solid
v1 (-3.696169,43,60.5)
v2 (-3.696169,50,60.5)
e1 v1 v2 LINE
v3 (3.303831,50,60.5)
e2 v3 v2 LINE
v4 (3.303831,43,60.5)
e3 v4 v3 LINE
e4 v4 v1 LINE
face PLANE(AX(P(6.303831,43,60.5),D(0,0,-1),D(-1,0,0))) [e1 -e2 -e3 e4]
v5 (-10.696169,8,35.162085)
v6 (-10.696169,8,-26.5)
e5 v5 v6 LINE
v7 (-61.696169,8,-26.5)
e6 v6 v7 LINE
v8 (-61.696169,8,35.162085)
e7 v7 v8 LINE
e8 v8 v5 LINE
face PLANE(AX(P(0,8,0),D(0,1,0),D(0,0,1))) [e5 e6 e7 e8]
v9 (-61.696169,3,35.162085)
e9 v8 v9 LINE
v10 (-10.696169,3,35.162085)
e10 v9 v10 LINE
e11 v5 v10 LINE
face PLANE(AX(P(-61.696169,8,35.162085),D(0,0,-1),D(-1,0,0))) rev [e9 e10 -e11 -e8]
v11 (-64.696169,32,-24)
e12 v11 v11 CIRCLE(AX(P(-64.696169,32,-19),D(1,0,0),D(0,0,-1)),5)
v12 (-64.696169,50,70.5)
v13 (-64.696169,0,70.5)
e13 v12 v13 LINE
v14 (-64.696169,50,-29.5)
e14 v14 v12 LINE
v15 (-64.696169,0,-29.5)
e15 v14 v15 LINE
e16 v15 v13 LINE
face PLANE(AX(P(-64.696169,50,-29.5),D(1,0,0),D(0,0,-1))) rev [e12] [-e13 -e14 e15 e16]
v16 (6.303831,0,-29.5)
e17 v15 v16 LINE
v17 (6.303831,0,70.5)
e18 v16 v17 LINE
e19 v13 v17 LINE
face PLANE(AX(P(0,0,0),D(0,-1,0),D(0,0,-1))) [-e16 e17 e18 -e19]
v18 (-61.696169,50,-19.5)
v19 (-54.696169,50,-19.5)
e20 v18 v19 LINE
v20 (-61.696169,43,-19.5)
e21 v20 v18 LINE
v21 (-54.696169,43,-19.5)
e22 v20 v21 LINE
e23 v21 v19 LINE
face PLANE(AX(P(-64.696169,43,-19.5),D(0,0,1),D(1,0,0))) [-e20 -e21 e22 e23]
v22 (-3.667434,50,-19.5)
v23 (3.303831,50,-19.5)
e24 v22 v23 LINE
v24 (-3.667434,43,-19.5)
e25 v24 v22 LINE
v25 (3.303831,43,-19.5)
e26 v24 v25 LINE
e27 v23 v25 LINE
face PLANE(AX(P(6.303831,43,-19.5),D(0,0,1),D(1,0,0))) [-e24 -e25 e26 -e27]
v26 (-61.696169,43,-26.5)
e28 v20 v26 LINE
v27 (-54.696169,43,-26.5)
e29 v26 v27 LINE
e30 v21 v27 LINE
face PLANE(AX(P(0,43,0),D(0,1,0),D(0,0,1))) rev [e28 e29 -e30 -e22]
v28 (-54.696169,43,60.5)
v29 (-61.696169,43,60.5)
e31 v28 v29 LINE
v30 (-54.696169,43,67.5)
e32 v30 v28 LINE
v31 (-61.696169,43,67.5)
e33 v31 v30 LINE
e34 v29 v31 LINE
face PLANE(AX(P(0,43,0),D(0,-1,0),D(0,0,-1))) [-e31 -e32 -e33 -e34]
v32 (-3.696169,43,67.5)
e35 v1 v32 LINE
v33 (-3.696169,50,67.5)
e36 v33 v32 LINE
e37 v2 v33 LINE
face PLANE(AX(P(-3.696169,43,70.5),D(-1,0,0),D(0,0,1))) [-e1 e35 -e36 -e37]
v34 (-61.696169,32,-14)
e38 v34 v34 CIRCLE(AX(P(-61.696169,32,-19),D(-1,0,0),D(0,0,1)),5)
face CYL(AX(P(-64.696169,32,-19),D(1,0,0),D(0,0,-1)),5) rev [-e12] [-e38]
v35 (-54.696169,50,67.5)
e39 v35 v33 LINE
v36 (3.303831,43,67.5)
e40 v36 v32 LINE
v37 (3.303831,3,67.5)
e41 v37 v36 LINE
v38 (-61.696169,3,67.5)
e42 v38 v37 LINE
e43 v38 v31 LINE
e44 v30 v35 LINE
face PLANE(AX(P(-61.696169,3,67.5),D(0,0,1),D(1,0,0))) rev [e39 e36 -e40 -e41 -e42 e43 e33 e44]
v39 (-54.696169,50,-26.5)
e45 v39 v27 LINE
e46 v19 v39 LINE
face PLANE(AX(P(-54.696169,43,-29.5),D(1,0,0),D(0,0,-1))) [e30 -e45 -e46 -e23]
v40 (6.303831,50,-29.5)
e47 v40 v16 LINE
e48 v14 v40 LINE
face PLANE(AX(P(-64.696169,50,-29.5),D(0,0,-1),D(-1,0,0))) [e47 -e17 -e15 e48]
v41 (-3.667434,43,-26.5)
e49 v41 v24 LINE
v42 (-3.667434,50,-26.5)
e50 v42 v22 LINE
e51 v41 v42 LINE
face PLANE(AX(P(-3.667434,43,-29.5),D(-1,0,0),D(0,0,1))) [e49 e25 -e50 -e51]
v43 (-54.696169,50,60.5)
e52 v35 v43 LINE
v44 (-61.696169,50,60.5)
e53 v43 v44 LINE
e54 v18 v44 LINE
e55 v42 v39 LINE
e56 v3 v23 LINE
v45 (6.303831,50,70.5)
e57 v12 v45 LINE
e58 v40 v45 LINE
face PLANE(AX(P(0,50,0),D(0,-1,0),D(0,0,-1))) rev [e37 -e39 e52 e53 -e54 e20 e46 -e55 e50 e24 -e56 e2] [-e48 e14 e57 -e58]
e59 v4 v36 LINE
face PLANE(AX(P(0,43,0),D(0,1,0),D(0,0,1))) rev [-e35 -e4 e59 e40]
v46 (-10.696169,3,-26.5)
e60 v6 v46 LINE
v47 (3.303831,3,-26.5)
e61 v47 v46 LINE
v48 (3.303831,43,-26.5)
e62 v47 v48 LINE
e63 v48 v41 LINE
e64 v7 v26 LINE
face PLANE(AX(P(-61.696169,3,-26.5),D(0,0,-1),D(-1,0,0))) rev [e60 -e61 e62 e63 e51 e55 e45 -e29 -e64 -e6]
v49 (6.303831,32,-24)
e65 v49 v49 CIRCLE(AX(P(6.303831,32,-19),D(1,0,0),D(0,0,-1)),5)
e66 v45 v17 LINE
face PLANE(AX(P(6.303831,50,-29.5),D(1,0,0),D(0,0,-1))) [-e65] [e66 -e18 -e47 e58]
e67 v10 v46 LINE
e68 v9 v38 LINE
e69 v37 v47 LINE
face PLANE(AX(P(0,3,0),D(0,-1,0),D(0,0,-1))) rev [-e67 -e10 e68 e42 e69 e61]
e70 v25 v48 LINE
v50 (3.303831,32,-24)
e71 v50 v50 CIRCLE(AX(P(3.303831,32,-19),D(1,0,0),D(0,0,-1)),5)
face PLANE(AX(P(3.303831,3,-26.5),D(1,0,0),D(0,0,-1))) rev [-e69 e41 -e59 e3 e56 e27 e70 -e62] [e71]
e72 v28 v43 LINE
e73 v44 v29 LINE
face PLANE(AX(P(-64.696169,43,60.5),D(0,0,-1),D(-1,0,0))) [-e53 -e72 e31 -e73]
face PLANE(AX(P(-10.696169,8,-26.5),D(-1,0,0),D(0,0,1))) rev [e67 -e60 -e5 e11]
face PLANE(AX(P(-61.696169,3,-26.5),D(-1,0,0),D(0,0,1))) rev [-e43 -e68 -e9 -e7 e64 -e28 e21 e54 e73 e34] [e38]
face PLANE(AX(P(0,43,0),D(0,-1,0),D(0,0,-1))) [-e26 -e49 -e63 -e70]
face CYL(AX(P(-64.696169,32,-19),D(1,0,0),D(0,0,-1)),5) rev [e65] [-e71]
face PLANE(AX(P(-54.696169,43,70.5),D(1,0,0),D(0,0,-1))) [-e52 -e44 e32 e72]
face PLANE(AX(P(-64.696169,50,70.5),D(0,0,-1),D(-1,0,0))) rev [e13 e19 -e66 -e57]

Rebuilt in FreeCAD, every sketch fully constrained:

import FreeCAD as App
import Part
import Sketcher

V = App.Vector
Q = App.Units.Quantity

doc = App.newDocument("Part")
body = doc.addObject("PartDesign::Body", "Body")

sketch1 = doc.addObject("Sketcher::SketchObject", "Sketch")
body.addObject(sketch1)
sketch1.AttachmentSupport = (doc.XZ_Plane, [""])
sketch1.MapMode = "FlatFace"
sketch1.addGeometry(Part.LineSegment(V(-64.696169, -29.5, 0), V(-64.696169, 70.5, 0)), False)
sketch1.addGeometry(Part.LineSegment(V(-64.696169, 70.5, 0), V(6.303831, 70.5, 0)), False)
sketch1.addGeometry(Part.LineSegment(V(6.303831, 70.5, 0), V(6.303831, -29.5, 0)), False)
sketch1.addGeometry(Part.LineSegment(V(6.303831, -29.5, 0), V(-64.696169, -29.5, 0)), False)
sketch1.addConstraint(Sketcher.Constraint("Coincident", 0, 2, 1, 1))
sketch1.addConstraint(Sketcher.Constraint("Coincident", 1, 2, 2, 1))
sketch1.addConstraint(Sketcher.Constraint("Coincident", 2, 2, 3, 1))
sketch1.addConstraint(Sketcher.Constraint("Coincident", 3, 2, 0, 1))
sketch1.addConstraint(Sketcher.Constraint("Vertical", 0))
sketch1.addConstraint(Sketcher.Constraint("Horizontal", 1))
sketch1.addConstraint(Sketcher.Constraint("Vertical", 2))
sketch1.addConstraint(Sketcher.Constraint("Horizontal", 3))
sketch1.addConstraint(Sketcher.Constraint("DistanceX", 1, 1, 1, 2, Q("71 mm")))
sketch1.addConstraint(Sketcher.Constraint("DistanceY", 0, 1, 0, 2, Q("100 mm")))
sketch1.addConstraint(Sketcher.Constraint("DistanceY", -1, 1, 0, 2, Q("70.5 mm")))
sketch1.addConstraint(Sketcher.Constraint("DistanceX", 0, 2, -1, 1, Q("64.696169 mm")))
pad1 = doc.addObject("PartDesign::Pad", "Pad")
body.addObject(pad1)
pad1.Profile = sketch1
pad1.Length = 50
pad1.Reversed = True

sketch2 = doc.addObject("Sketcher::SketchObject", "Sketch001")
body.addObject(sketch2)
sketch2.AttachmentSupport = (doc.XZ_Plane, [""])
sketch2.MapMode = "FlatFace"
sketch2.AttachmentOffset = App.Placement(V(0, 0, -50), App.Rotation())
sketch2.addGeometry(Part.LineSegment(V(-61.696169, -26.5, 0), V(-61.696169, 67.5, 0)), False)
sketch2.addGeometry(Part.LineSegment(V(-61.696169, 67.5, 0), V(3.303831, 67.5, 0)), False)
sketch2.addGeometry(Part.LineSegment(V(3.303831, 67.5, 0), V(3.303831, -26.5, 0)), False)
sketch2.addGeometry(Part.LineSegment(V(3.303831, -26.5, 0), V(-61.696169, -26.5, 0)), False)
sketch2.addConstraint(Sketcher.Constraint("Coincident", 0, 2, 1, 1))
sketch2.addConstraint(Sketcher.Constraint("Coincident", 1, 2, 2, 1))
sketch2.addConstraint(Sketcher.Constraint("Coincident", 2, 2, 3, 1))
sketch2.addConstraint(Sketcher.Constraint("Coincident", 3, 2, 0, 1))
sketch2.addConstraint(Sketcher.Constraint("Vertical", 0))
sketch2.addConstraint(Sketcher.Constraint("Horizontal", 1))
sketch2.addConstraint(Sketcher.Constraint("Vertical", 2))
sketch2.addConstraint(Sketcher.Constraint("Horizontal", 3))
sketch2.addConstraint(Sketcher.Constraint("DistanceX", 1, 1, 1, 2, Q("65 mm")))
sketch2.addConstraint(Sketcher.Constraint("DistanceY", 0, 1, 0, 2, Q("94 mm")))
sketch2.addConstraint(Sketcher.Constraint("DistanceY", -1, 1, 0, 2, Q("67.5 mm")))
sketch2.addConstraint(Sketcher.Constraint("DistanceX", 0, 2, -1, 1, Q("61.696169 mm")))
pocket1 = doc.addObject("PartDesign::Pocket", "Pocket")
body.addObject(pocket1)
pocket1.Profile = sketch2
pocket1.Length = 47
pocket1.Reversed = True

sketch3 = doc.addObject("Sketcher::SketchObject", "Sketch002")
body.addObject(sketch3)
sketch3.AttachmentSupport = (doc.XZ_Plane, [""])
sketch3.MapMode = "FlatFace"
sketch3.AttachmentOffset = App.Placement(V(0, 0, -3), App.Rotation())
sketch3.addGeometry(Part.LineSegment(V(-61.696169, -26.5, 0), V(-61.696169, 35.162085, 0)), False)
sketch3.addGeometry(Part.LineSegment(V(-61.696169, 35.162085, 0), V(-10.696169, 35.162085, 0)), False)
sketch3.addGeometry(Part.LineSegment(V(-10.696169, 35.162085, 0), V(-10.696169, -26.5, 0)), False)
sketch3.addGeometry(Part.LineSegment(V(-10.696169, -26.5, 0), V(-61.696169, -26.5, 0)), False)
sketch3.addConstraint(Sketcher.Constraint("Coincident", 0, 2, 1, 1))
sketch3.addConstraint(Sketcher.Constraint("Coincident", 1, 2, 2, 1))
sketch3.addConstraint(Sketcher.Constraint("Coincident", 2, 2, 3, 1))
sketch3.addConstraint(Sketcher.Constraint("Coincident", 3, 2, 0, 1))
sketch3.addConstraint(Sketcher.Constraint("Vertical", 0))
sketch3.addConstraint(Sketcher.Constraint("Horizontal", 1))
sketch3.addConstraint(Sketcher.Constraint("Vertical", 2))
sketch3.addConstraint(Sketcher.Constraint("Horizontal", 3))
sketch3.addConstraint(Sketcher.Constraint("DistanceX", 1, 1, 1, 2, Q("51 mm")))
sketch3.addConstraint(Sketcher.Constraint("DistanceY", 2, 2, -1, 1, Q("26.5 mm")))
sketch3.addConstraint(Sketcher.Constraint("DistanceY", 0, 1, 0, 2, Q("61.662085 mm")))
sketch3.addConstraint(Sketcher.Constraint("DistanceX", 0, 2, -1, 1, Q("61.696169 mm")))
pad2 = doc.addObject("PartDesign::Pad", "Pad001")
body.addObject(pad2)
pad2.Profile = sketch3
pad2.Length = 5
pad2.Reversed = True

sketch4 = doc.addObject("Sketcher::SketchObject", "Sketch003")
body.addObject(sketch4)
sketch4.AttachmentSupport = (doc.YZ_Plane, [""])
sketch4.MapMode = "FlatFace"
sketch4.AttachmentOffset = App.Placement(V(0, 0, -61.696169), App.Rotation())
sketch4.addGeometry(Part.Circle(V(32, -19, 0), V(0, 0, 1), 5), False)
sketch4.addConstraint(Sketcher.Constraint("Diameter", 0, Q("10 mm")))
sketch4.addConstraint(Sketcher.Constraint("DistanceX", -1, 1, 0, 3, Q("32 mm")))
sketch4.addConstraint(Sketcher.Constraint("DistanceY", 0, 3, -1, 1, Q("19 mm")))
pocket2 = doc.addObject("PartDesign::Pocket", "Pocket001")
body.addObject(pocket2)
pocket2.Profile = sketch4
pocket2.Type = "ThroughAll"
pocket2.Midplane = True

sketch5 = doc.addObject("Sketcher::SketchObject", "Sketch004")
body.addObject(sketch5)
sketch5.AttachmentSupport = (doc.XZ_Plane, [""])
sketch5.MapMode = "FlatFace"
sketch5.AttachmentOffset = App.Placement(V(0, 0, -50), App.Rotation())
sketch5.addGeometry(Part.LineSegment(V(-64.696169, -29.5, 0), V(-64.696169, -19.5, 0)), False)
sketch5.addGeometry(Part.LineSegment(V(-64.696169, -19.5, 0), V(-54.696169, -19.5, 0)), False)
sketch5.addGeometry(Part.LineSegment(V(-54.696169, -19.5, 0), V(-54.696169, -29.5, 0)), False)
sketch5.addGeometry(Part.LineSegment(V(-54.696169, -29.5, 0), V(-64.696169, -29.5, 0)), False)
sketch5.addGeometry(Part.LineSegment(V(-3.667434, -29.5, 0), V(-3.667434, -19.5, 0)), False)
sketch5.addGeometry(Part.LineSegment(V(-3.667434, -19.5, 0), V(6.303831, -19.5, 0)), False)
sketch5.addGeometry(Part.LineSegment(V(6.303831, -19.5, 0), V(6.303831, -29.5, 0)), False)
sketch5.addGeometry(Part.LineSegment(V(6.303831, -29.5, 0), V(-3.667434, -29.5, 0)), False)
sketch5.addGeometry(Part.LineSegment(V(-3.696169, 60.5, 0), V(-3.696169, 70.5, 0)), False)
sketch5.addGeometry(Part.LineSegment(V(-3.696169, 70.5, 0), V(6.303831, 70.5, 0)), False)
sketch5.addGeometry(Part.LineSegment(V(6.303831, 70.5, 0), V(6.303831, 60.5, 0)), False)
sketch5.addGeometry(Part.LineSegment(V(6.303831, 60.5, 0), V(-3.696169, 60.5, 0)), False)
sketch5.addGeometry(Part.LineSegment(V(-64.696169, 60.5, 0), V(-64.696169, 70.5, 0)), False)
sketch5.addGeometry(Part.LineSegment(V(-64.696169, 70.5, 0), V(-54.696169, 70.5, 0)), False)
sketch5.addGeometry(Part.LineSegment(V(-54.696169, 70.5, 0), V(-54.696169, 60.5, 0)), False)
sketch5.addGeometry(Part.LineSegment(V(-54.696169, 60.5, 0), V(-64.696169, 60.5, 0)), False)
sketch5.addConstraint(Sketcher.Constraint("Coincident", 0, 2, 1, 1))
sketch5.addConstraint(Sketcher.Constraint("Coincident", 1, 2, 2, 1))
sketch5.addConstraint(Sketcher.Constraint("Coincident", 2, 2, 3, 1))
sketch5.addConstraint(Sketcher.Constraint("Coincident", 3, 2, 0, 1))
sketch5.addConstraint(Sketcher.Constraint("Coincident", 4, 2, 5, 1))
sketch5.addConstraint(Sketcher.Constraint("Coincident", 5, 2, 6, 1))
sketch5.addConstraint(Sketcher.Constraint("Coincident", 6, 2, 7, 1))
sketch5.addConstraint(Sketcher.Constraint("Coincident", 7, 2, 4, 1))
sketch5.addConstraint(Sketcher.Constraint("Coincident", 8, 2, 9, 1))
sketch5.addConstraint(Sketcher.Constraint("Coincident", 9, 2, 10, 1))
sketch5.addConstraint(Sketcher.Constraint("Coincident", 10, 2, 11, 1))
sketch5.addConstraint(Sketcher.Constraint("Coincident", 11, 2, 8, 1))
sketch5.addConstraint(Sketcher.Constraint("Coincident", 12, 2, 13, 1))
sketch5.addConstraint(Sketcher.Constraint("Coincident", 13, 2, 14, 1))
sketch5.addConstraint(Sketcher.Constraint("Coincident", 14, 2, 15, 1))
sketch5.addConstraint(Sketcher.Constraint("Coincident", 15, 2, 12, 1))
sketch5.addConstraint(Sketcher.Constraint("Vertical", 0))
sketch5.addConstraint(Sketcher.Constraint("Horizontal", 1))
sketch5.addConstraint(Sketcher.Constraint("Vertical", 2))
sketch5.addConstraint(Sketcher.Constraint("Horizontal", 3))
sketch5.addConstraint(Sketcher.Constraint("Vertical", 4))
sketch5.addConstraint(Sketcher.Constraint("Horizontal", 5))
sketch5.addConstraint(Sketcher.Constraint("Vertical", 6))
sketch5.addConstraint(Sketcher.Constraint("Horizontal", 7))
sketch5.addConstraint(Sketcher.Constraint("Vertical", 8))
sketch5.addConstraint(Sketcher.Constraint("Horizontal", 9))
sketch5.addConstraint(Sketcher.Constraint("Vertical", 10))
sketch5.addConstraint(Sketcher.Constraint("Horizontal", 11))
sketch5.addConstraint(Sketcher.Constraint("Vertical", 12))
sketch5.addConstraint(Sketcher.Constraint("Horizontal", 13))
sketch5.addConstraint(Sketcher.Constraint("Vertical", 14))
sketch5.addConstraint(Sketcher.Constraint("Horizontal", 15))
sketch5.addConstraint(Sketcher.Constraint("Horizontal", 1, 2, 4, 2))
sketch5.addConstraint(Sketcher.Constraint("Horizontal", 3, 2, 6, 2))
sketch5.addConstraint(Sketcher.Constraint("Horizontal", 9, 2, 12, 2))
sketch5.addConstraint(Sketcher.Constraint("Horizontal", 11, 2, 14, 2))
sketch5.addConstraint(Sketcher.Constraint("Vertical", 6, 2, 9, 2))
sketch5.addConstraint(Sketcher.Constraint("Vertical", 3, 2, 12, 2))
sketch5.addConstraint(Sketcher.Constraint("Vertical", 2, 2, 13, 2))
sketch5.addConstraint(Sketcher.Constraint("Equal", 3, 9))
sketch5.addConstraint(Sketcher.Constraint("Equal", 15, 0))
sketch5.addConstraint(Sketcher.Constraint("Equal", 6, 8))
sketch5.addConstraint(Sketcher.Constraint("DistanceX", 1, 1, 1, 2, Q("10 mm")))
sketch5.addConstraint(Sketcher.Constraint("DistanceX", 1, 2, 5, 2, Q("61 mm")))
sketch5.addConstraint(Sketcher.Constraint("DistanceY", 4, 2, 8, 2, Q("90 mm")))
sketch5.addConstraint(Sketcher.Constraint("DistanceY", 0, 2, -1, 1, Q("19.5 mm")))
sketch5.addConstraint(Sketcher.Constraint("DistanceX", 5, 1, 5, 2, Q("9.971265 mm")))
sketch5.addConstraint(Sketcher.Constraint("DistanceX", 0, 2, -1, 1, Q("64.696169 mm")))
pad3 = doc.addObject("PartDesign::Pad", "Pad002")
body.addObject(pad3)
pad3.Profile = sketch5
pad3.Length = 7

doc.recompute()
